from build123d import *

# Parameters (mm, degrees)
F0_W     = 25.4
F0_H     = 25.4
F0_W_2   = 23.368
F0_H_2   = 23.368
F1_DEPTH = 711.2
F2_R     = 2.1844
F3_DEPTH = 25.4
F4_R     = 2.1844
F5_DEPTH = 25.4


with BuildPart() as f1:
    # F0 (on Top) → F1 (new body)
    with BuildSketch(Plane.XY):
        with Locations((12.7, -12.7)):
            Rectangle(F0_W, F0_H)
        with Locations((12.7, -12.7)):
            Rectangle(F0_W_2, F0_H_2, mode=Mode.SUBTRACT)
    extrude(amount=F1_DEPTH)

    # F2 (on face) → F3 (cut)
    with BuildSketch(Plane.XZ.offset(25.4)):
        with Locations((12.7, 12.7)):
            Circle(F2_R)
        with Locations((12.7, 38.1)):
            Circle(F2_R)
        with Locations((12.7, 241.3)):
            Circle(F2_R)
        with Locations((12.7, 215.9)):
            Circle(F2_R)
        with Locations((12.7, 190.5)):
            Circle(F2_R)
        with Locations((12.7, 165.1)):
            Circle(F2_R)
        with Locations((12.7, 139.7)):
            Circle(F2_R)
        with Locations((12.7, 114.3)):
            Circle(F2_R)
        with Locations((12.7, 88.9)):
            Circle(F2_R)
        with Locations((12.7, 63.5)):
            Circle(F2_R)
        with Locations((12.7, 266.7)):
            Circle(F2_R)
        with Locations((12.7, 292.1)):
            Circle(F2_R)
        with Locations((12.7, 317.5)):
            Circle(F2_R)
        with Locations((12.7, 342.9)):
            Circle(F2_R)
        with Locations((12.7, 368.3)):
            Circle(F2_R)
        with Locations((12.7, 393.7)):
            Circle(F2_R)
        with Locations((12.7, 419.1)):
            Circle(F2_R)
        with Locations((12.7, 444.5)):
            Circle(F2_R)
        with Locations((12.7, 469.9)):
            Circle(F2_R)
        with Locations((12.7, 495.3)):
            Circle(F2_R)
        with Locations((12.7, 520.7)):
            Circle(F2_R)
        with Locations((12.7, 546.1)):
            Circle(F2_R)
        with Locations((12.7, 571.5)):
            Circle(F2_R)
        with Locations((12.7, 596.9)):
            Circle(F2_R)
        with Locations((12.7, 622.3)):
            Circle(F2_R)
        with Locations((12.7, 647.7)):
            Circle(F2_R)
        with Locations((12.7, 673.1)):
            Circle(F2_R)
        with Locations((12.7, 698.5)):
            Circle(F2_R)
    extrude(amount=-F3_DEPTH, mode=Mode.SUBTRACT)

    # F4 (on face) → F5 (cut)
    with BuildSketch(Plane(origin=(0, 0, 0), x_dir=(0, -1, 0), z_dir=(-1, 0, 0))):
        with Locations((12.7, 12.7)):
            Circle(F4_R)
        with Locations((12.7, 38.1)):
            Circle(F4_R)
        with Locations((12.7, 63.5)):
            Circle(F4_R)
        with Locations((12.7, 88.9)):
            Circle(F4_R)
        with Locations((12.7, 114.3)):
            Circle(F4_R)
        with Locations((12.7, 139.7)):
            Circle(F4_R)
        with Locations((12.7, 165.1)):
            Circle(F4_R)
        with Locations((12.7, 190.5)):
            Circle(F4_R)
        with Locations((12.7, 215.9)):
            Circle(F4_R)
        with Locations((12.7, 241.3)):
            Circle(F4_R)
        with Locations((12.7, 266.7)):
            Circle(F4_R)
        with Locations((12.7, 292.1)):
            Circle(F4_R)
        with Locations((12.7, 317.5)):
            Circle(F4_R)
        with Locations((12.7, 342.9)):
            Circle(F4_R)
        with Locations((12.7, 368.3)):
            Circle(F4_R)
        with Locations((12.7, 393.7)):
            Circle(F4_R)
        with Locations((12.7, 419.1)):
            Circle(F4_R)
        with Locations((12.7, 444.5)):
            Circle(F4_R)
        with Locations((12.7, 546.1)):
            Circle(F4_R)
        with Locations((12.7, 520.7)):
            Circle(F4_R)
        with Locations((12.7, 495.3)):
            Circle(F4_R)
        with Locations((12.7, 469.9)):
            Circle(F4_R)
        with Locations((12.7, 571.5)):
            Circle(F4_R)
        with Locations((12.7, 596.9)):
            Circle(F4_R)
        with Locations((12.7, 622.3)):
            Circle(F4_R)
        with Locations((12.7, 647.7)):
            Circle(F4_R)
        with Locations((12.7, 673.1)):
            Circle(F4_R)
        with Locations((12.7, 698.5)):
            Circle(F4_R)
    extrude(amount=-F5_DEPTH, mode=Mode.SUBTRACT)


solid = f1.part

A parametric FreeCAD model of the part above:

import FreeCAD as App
import Part
import Sketcher
from FreeCAD import Vector
Q = App.Units.Quantity

doc = App.newDocument("Part")
params = doc.addObject("Spreadsheet::Sheet", "Params")
for row, (alias, value) in enumerate([
    ("sketch1_width", "1 in"),
    ("sketch1_width2", "0.92 in"),
    ("pad1_length", "28 in"),
    ("sketch2_diameter", "0.172 in"),
    ("pocket1_length", "1 in"),
    ("sketch3_diameter", "0.172 in"),
    ("pocket2_length", "1 in"),
], start=1):
    params.set(f"A{row}", alias)
    params.set(f"B{row}", "=" + value)
    params.setAlias(f"B{row}", alias)

body = doc.addObject("PartDesign::Body", "Body")

# Sketch on XY plane
sketch1 = body.newObject("Sketcher::SketchObject", "Sketch")
sketch1.AttachmentSupport = (doc.getObject("XY_Plane"), [""])
sketch1.MapMode = "FlatFace"
sketch1.addGeometry(Part.LineSegment(Vector(0, 0, 0), Vector(0, -25.4, 0)), False)
sketch1.addGeometry(Part.LineSegment(Vector(0, -25.4, 0), Vector(25.4, -25.4, 0)), False)
sketch1.addGeometry(Part.LineSegment(Vector(25.4, -25.4, 0), Vector(25.4, 0, 0)), False)
sketch1.addGeometry(Part.LineSegment(Vector(25.4, 0, 0), Vector(0, 0, 0)), False)
sketch1.addGeometry(Part.LineSegment(Vector(24.384, -24.384, 0), Vector(1.016, -24.384, 0)), False)
sketch1.addGeometry(Part.LineSegment(Vector(1.016, -24.384, 0), Vector(1.016, -1.016, 0)), False)
sketch1.addGeometry(Part.LineSegment(Vector(1.016, -1.016, 0), Vector(24.384, -1.016, 0)), False)
sketch1.addGeometry(Part.LineSegment(Vector(24.384, -1.016, 0), Vector(24.384, -24.384, 0)), False)
sketch1.addConstraint(Sketcher.Constraint("Coincident", 0, 2, 1, 1))
sketch1.addConstraint(Sketcher.Constraint("Coincident", 1, 2, 2, 1))
sketch1.addConstraint(Sketcher.Constraint("Coincident", 2, 2, 3, 1))
sketch1.addConstraint(Sketcher.Constraint("Coincident", 3, 2, 0, 1))
sketch1.addConstraint(Sketcher.Constraint("Coincident", 4, 2, 5, 1))
sketch1.addConstraint(Sketcher.Constraint("Coincident", 5, 2, 6, 1))
sketch1.addConstraint(Sketcher.Constraint("Coincident", 6, 2, 7, 1))
sketch1.addConstraint(Sketcher.Constraint("Coincident", 7, 2, 4, 1))
sketch1.addConstraint(Sketcher.Constraint("Vertical", 0))
sketch1.addConstraint(Sketcher.Constraint("Horizontal", 1))
sketch1.addConstraint(Sketcher.Constraint("Vertical", 2))
sketch1.addConstraint(Sketcher.Constraint("Horizontal", 3))
sketch1.addConstraint(Sketcher.Constraint("Horizontal", 4))
sketch1.addConstraint(Sketcher.Constraint("Vertical", 5))
sketch1.addConstraint(Sketcher.Constraint("Horizontal", 6))
sketch1.addConstraint(Sketcher.Constraint("Vertical", 7))
sketch1.addConstraint(Sketcher.Constraint("Coincident", 3, 2, -1, 1))
sketch1.addConstraint(Sketcher.Constraint("Equal", 3, 0))
sketch1.addConstraint(Sketcher.Constraint("Equal", 6, 5))
sketch1.addConstraint(Sketcher.Constraint("DistanceX", 1, 1, 1, 2, Q("1 in")))
sketch1.addConstraint(Sketcher.Constraint("DistanceX", 4, 2, 4, 1, Q("0.92 in")))
sketch1.addConstraint(Sketcher.Constraint("DistanceX", -1, 1, 4, 2, Q("0.04 in")))
sketch1.addConstraint(Sketcher.Constraint("DistanceY", 4, 2, -1, 1, Q("0.96 in")))
sketch1.setExpression("Constraints[19]", "Params.sketch1_width")
sketch1.setExpression("Constraints[20]", "Params.sketch1_width2")
pad1 = body.newObject("PartDesign::Pad", "Pad")
pad1.Profile = sketch1
pad1.setExpression("Length", "Params.pad1_length")

# Sketch on XZ plane
sketch2 = body.newObject("Sketcher::SketchObject", "Sketch001")
sketch2.AttachmentSupport = (doc.getObject("XZ_Plane"), [""])
sketch2.MapMode = "FlatFace"
sketch2.AttachmentOffset = App.Placement(Vector(0, 0, 1 * 25.4), App.Rotation())
sketch2.addGeometry(Part.Circle(Vector(12.7, 12.7, 0), Vector(0, 0, 1), 2.1844), False)
sketch2.addGeometry(Part.Circle(Vector(12.7, 38.1, 0), Vector(0, 0, 1), 2.1844), False)
sketch2.addGeometry(Part.Circle(Vector(12.7, 241.3, 0), Vector(0, 0, 1), 2.1844), False)
sketch2.addGeometry(Part.Circle(Vector(12.7, 215.9, 0), Vector(0, 0, 1), 2.1844), False)
sketch2.addGeometry(Part.Circle(Vector(12.7, 190.5, 0), Vector(0, 0, 1), 2.1844), False)
sketch2.addGeometry(Part.Circle(Vector(12.7, 165.1, 0), Vector(0, 0, 1), 2.1844), False)
sketch2.addGeometry(Part.Circle(Vector(12.7, 139.7, 0), Vector(0, 0, 1), 2.1844), False)
sketch2.addGeometry(Part.Circle(Vector(12.7, 114.3, 0), Vector(0, 0, 1), 2.1844), False)
sketch2.addGeometry(Part.Circle(Vector(12.7, 88.9, 0), Vector(0, 0, 1), 2.1844), False)
sketch2.addGeometry(Part.Circle(Vector(12.7, 63.5, 0), Vector(0, 0, 1), 2.1844), False)
sketch2.addGeometry(Part.Circle(Vector(12.7, 266.7, 0), Vector(0, 0, 1), 2.1844), False)
sketch2.addGeometry(Part.Circle(Vector(12.7, 292.1, 0), Vector(0, 0, 1), 2.1844), False)
sketch2.addGeometry(Part.Circle(Vector(12.7, 317.5, 0), Vector(0, 0, 1), 2.1844), False)
sketch2.addGeometry(Part.Circle(Vector(12.7, 342.9, 0), Vector(0, 0, 1), 2.1844), False)
sketch2.addGeometry(Part.Circle(Vector(12.7, 368.3, 0), Vector(0, 0, 1), 2.1844), False)
sketch2.addGeometry(Part.Circle(Vector(12.7, 393.7, 0), Vector(0, 0, 1), 2.1844), False)
sketch2.addGeometry(Part.Circle(Vector(12.7, 419.1, 0), Vector(0, 0, 1), 2.1844), False)
sketch2.addGeometry(Part.Circle(Vector(12.7, 444.5, 0), Vector(0, 0, 1), 2.1844), False)
sketch2.addGeometry(Part.Circle(Vector(12.7, 469.9, 0), Vector(0, 0, 1), 2.1844), False)
sketch2.addGeometry(Part.Circle(Vector(12.7, 495.3, 0), Vector(0, 0, 1), 2.1844), False)
sketch2.addGeometry(Part.Circle(Vector(12.7, 520.7, 0), Vector(0, 0, 1), 2.1844), False)
sketch2.addGeometry(Part.Circle(Vector(12.7, 546.1, 0), Vector(0, 0, 1), 2.1844), False)
sketch2.addGeometry(Part.Circle(Vector(12.7, 571.5, 0), Vector(0, 0, 1), 2.1844), False)
sketch2.addGeometry(Part.Circle(Vector(12.7, 596.9, 0), Vector(0, 0, 1), 2.1844), False)
sketch2.addGeometry(Part.Circle(Vector(12.7, 622.3, 0), Vector(0, 0, 1), 2.1844), False)
sketch2.addGeometry(Part.Circle(Vector(12.7, 647.7, 0), Vector(0, 0, 1), 2.1844), False)
sketch2.addGeometry(Part.Circle(Vector(12.7, 673.1, 0), Vector(0, 0, 1), 2.1844), False)
sketch2.addGeometry(Part.Circle(Vector(12.7, 698.5, 0), Vector(0, 0, 1), 2.1844), False)
sketch2.addConstraint(Sketcher.Constraint("Equal", 0, 1))
sketch2.addConstraint(Sketcher.Constraint("Equal", 1, 2))
sketch2.addConstraint(Sketcher.Constraint("Equal", 2, 3))
sketch2.addConstraint(Sketcher.Constraint("Equal", 3, 4))
sketch2.addConstraint(Sketcher.Constraint("Equal", 4, 5))
sketch2.addConstraint(Sketcher.Constraint("Equal", 5, 6))
sketch2.addConstraint(Sketcher.Constraint("Equal", 6, 7))
sketch2.addConstraint(Sketcher.Constraint("Equal", 7, 8))
sketch2.addConstraint(Sketcher.Constraint("Equal", 8, 9))
sketch2.addConstraint(Sketcher.Constraint("Equal", 9, 10))
sketch2.addConstraint(Sketcher.Constraint("Equal", 10, 11))
sketch2.addConstraint(Sketcher.Constraint("Equal", 11, 12))
sketch2.addConstraint(Sketcher.Constraint("Equal", 12, 13))
sketch2.addConstraint(Sketcher.Constraint("Equal", 13, 14))
sketch2.addConstraint(Sketcher.Constraint("Equal", 14, 15))
sketch2.addConstraint(Sketcher.Constraint("Equal", 15, 16))
sketch2.addConstraint(Sketcher.Constraint("Equal", 16, 17))
sketch2.addConstraint(Sketcher.Constraint("Equal", 17, 18))
sketch2.addConstraint(Sketcher.Constraint("Equal", 18, 19))
sketch2.addConstraint(Sketcher.Constraint("Equal", 19, 20))
sketch2.addConstraint(Sketcher.Constraint("Equal", 20, 21))
sketch2.addConstraint(Sketcher.Constraint("Equal", 21, 22))
sketch2.addConstraint(Sketcher.Constraint("Equal", 22, 23))
sketch2.addConstraint(Sketcher.Constraint("Equal", 23, 24))
sketch2.addConstraint(Sketcher.Constraint("Equal", 24, 25))
sketch2.addConstraint(Sketcher.Constraint("Equal", 25, 26))
sketch2.addConstraint(Sketcher.Constraint("Equal", 26, 27))
sketch2.addConstraint(Sketcher.Constraint("Vertical", 0, 3, 1, 3))
sketch2.addConstraint(Sketcher.Constraint("Vertical", 1, 3, 2, 3))
sketch2.addConstraint(Sketcher.Constraint("Vertical", 2, 3, 3, 3))
sketch2.addConstraint(Sketcher.Constraint("Vertical", 3, 3, 4, 3))
sketch2.addConstraint(Sketcher.Constraint("Vertical", 4, 3, 5, 3))
sketch2.addConstraint(Sketcher.Constraint("Vertical", 5, 3, 6, 3))
sketch2.addConstraint(Sketcher.Constraint("Vertical", 6, 3, 7, 3))
sketch2.addConstraint(Sketcher.Constraint("Vertical", 7, 3, 8, 3))
sketch2.addConstraint(Sketcher.Constraint("Vertical", 8, 3, 9, 3))
sketch2.addConstraint(Sketcher.Constraint("Vertical", 9, 3, 10, 3))
sketch2.addConstraint(Sketcher.Constraint("Vertical", 10, 3, 11, 3))
sketch2.addConstraint(Sketcher.Constraint("Vertical", 11, 3, 12, 3))
sketch2.addConstraint(Sketcher.Constraint("Vertical", 12, 3, 13, 3))
sketch2.addConstraint(Sketcher.Constraint("Vertical", 13, 3, 14, 3))
sketch2.addConstraint(Sketcher.Constraint("Vertical", 14, 3, 15, 3))
sketch2.addConstraint(Sketcher.Constraint("Vertical", 15, 3, 16, 3))
sketch2.addConstraint(Sketcher.Constraint("Vertical", 16, 3, 17, 3))
sketch2.addConstraint(Sketcher.Constraint("Vertical", 17, 3, 18, 3))
sketch2.addConstraint(Sketcher.Constraint("Vertical", 18, 3, 19, 3))
sketch2.addConstraint(Sketcher.Constraint("Vertical", 19, 3, 20, 3))
sketch2.addConstraint(Sketcher.Constraint("Vertical", 20, 3, 21, 3))
sketch2.addConstraint(Sketcher.Constraint("Vertical", 21, 3, 22, 3))
sketch2.addConstraint(Sketcher.Constraint("Vertical", 22, 3, 23, 3))
sketch2.addConstraint(Sketcher.Constraint("Vertical", 23, 3, 24, 3))
sketch2.addConstraint(Sketcher.Constraint("Vertical", 24, 3, 25, 3))
sketch2.addConstraint(Sketcher.Constraint("Vertical", 25, 3, 26, 3))
sketch2.addConstraint(Sketcher.Constraint("Vertical", 26, 3, 27, 3))
sketch2.addConstraint(Sketcher.Constraint("Diameter", 0, Q("0.172 in")))
sketch2.addConstraint(Sketcher.Constraint("DistanceY", 0, 3, 1, 3, Q("1 in")))
sketch2.addConstraint(Sketcher.Constraint("DistanceY", 1, 3, 2, 3, Q("8 in")))
sketch2.addConstraint(Sketcher.Constraint("DistanceY", 3, 3, 2, 3, Q("1 in")))
sketch2.addConstraint(Sketcher.Constraint("DistanceY", 4, 3, 3, 3, Q("1 in")))
sketch2.addConstraint(Sketcher.Constraint("DistanceY", 5, 3, 4, 3, Q("1 in")))
sketch2.addConstraint(Sketcher.Constraint("DistanceY", 6, 3, 5, 3, Q("1 in")))
sketch2.addConstraint(Sketcher.Constraint("DistanceY", 7, 3, 6, 3, Q("1 in")))
sketch2.addConstraint(Sketcher.Constraint("DistanceY", 8, 3, 7, 3, Q("1 in")))
sketch2.addConstraint(Sketcher.Constraint("DistanceY", 1, 3, 9, 3, Q("1 in")))
sketch2.addConstraint(Sketcher.Constraint("DistanceY", 2, 3, 10, 3, Q("1 in")))
sketch2.addConstraint(Sketcher.Constraint("DistanceY", 10, 3, 11, 3, Q("1 in")))
sketch2.addConstraint(Sketcher.Constraint("DistanceY", 11, 3, 12, 3, Q("1 in")))
sketch2.addConstraint(Sketcher.Constraint("DistanceY", 12, 3, 13, 3, Q("1 in")))
sketch2.addConstraint(Sketcher.Constraint("DistanceY", 13, 3, 14, 3, Q("1 in")))
sketch2.addConstraint(Sketcher.Constraint("DistanceY", 14, 3, 15, 3, Q("1 in")))
sketch2.addConstraint(Sketcher.Constraint("DistanceY", 15, 3, 16, 3, Q("1 in")))
sketch2.addConstraint(Sketcher.Constraint("DistanceY", 16, 3, 17, 3, Q("1 in")))
sketch2.addConstraint(Sketcher.Constraint("DistanceY", 17, 3, 18, 3, Q("1 in")))
sketch2.addConstraint(Sketcher.Constraint("DistanceY", 18, 3, 19, 3, Q("1 in")))
sketch2.addConstraint(Sketcher.Constraint("DistanceY", 19, 3, 20, 3, Q("1 in")))
sketch2.addConstraint(Sketcher.Constraint("DistanceY", 20, 3, 21, 3, Q("1 in")))
sketch2.addConstraint(Sketcher.Constraint("DistanceY", 21, 3, 22, 3, Q("1 in")))
sketch2.addConstraint(Sketcher.Constraint("DistanceY", 22, 3, 23, 3, Q("1 in")))
sketch2.addConstraint(Sketcher.Constraint("DistanceY", 23, 3, 24, 3, Q("1 in")))
sketch2.addConstraint(Sketcher.Constraint("DistanceY", 24, 3, 25, 3, Q("1 in")))
sketch2.addConstraint(Sketcher.Constraint("DistanceY", 25, 3, 26, 3, Q("1 in")))
sketch2.addConstraint(Sketcher.Constraint("DistanceY", 26, 3, 27, 3, Q("1 in")))
sketch2.addConstraint(Sketcher.Constraint("DistanceX", -1, 1, 0, 3, Q("0.5 in")))
sketch2.addConstraint(Sketcher.Constraint("DistanceY", -1, 1, 0, 3, Q("0.5 in")))
sketch2.setExpression("Constraints[54]", "Params.sketch2_diameter")
pocket1 = body.newObject("PartDesign::Pocket", "Pocket")
pocket1.Profile = sketch2
pocket1.setExpression("Length", "Params.pocket1_length")

# Sketch on YZ plane
sketch3 = body.newObject("Sketcher::SketchObject", "Sketch002")
sketch3.AttachmentSupport = (doc.getObject("YZ_Plane"), [""])
sketch3.MapMode = "FlatFace"
sketch3.addGeometry(Part.Circle(Vector(-12.7, 12.7, 0), Vector(0, 0, 1), 2.1844), False)
sketch3.addGeometry(Part.Circle(Vector(-12.7, 38.1, 0), Vector(0, 0, 1), 2.1844), False)
sketch3.addGeometry(Part.Circle(Vector(-12.7, 63.5, 0), Vector(0, 0, 1), 2.1844), False)
sketch3.addGeometry(Part.Circle(Vector(-12.7, 88.9, 0), Vector(0, 0, 1), 2.1844), False)
sketch3.addGeometry(Part.Circle(Vector(-12.7, 114.3, 0), Vector(0, 0, 1), 2.1844), False)
sketch3.addGeometry(Part.Circle(Vector(-12.7, 139.7, 0), Vector(0, 0, 1), 2.1844), False)
sketch3.addGeometry(Part.Circle(Vector(-12.7, 165.1, 0), Vector(0, 0, 1), 2.1844), False)
sketch3.addGeometry(Part.Circle(Vector(-12.7, 190.5, 0), Vector(0, 0, 1), 2.1844), False)
sketch3.addGeometry(Part.Circle(Vector(-12.7, 215.9, 0), Vector(0, 0, 1), 2.1844), False)
sketch3.addGeometry(Part.Circle(Vector(-12.7, 241.3, 0), Vector(0, 0, 1), 2.1844), False)
sketch3.addGeometry(Part.Circle(Vector(-12.7, 266.7, 0), Vector(0, 0, 1), 2.1844), False)
sketch3.addGeometry(Part.Circle(Vector(-12.7, 292.1, 0), Vector(0, 0, 1), 2.1844), False)
sketch3.addGeometry(Part.Circle(Vector(-12.7, 317.5, 0), Vector(0, 0, 1), 2.1844), False)
sketch3.addGeometry(Part.Circle(Vector(-12.7, 342.9, 0), Vector(0, 0, 1), 2.1844), False)
sketch3.addGeometry(Part.Circle(Vector(-12.7, 368.3, 0), Vector(0, 0, 1), 2.1844), False)
sketch3.addGeometry(Part.Circle(Vector(-12.7, 393.7, 0), Vector(0, 0, 1), 2.1844), False)
sketch3.addGeometry(Part.Circle(Vector(-12.7, 419.1, 0), Vector(0, 0, 1), 2.1844), False)
sketch3.addGeometry(Part.Circle(Vector(-12.7, 444.5, 0), Vector(0, 0, 1), 2.1844), False)
sketch3.addGeometry(Part.Circle(Vector(-12.7, 546.1, 0), Vector(0, 0, 1), 2.1844), False)
sketch3.addGeometry(Part.Circle(Vector(-12.7, 520.7, 0), Vector(0, 0, 1), 2.1844), False)
sketch3.addGeometry(Part.Circle(Vector(-12.7, 495.3, 0), Vector(0, 0, 1), 2.1844), False)
sketch3.addGeometry(Part.Circle(Vector(-12.7, 469.9, 0), Vector(0, 0, 1), 2.1844), False)
sketch3.addGeometry(Part.Circle(Vector(-12.7, 571.5, 0), Vector(0, 0, 1), 2.1844), False)
sketch3.addGeometry(Part.Circle(Vector(-12.7, 596.9, 0), Vector(0, 0, 1), 2.1844), False)
sketch3.addGeometry(Part.Circle(Vector(-12.7, 622.3, 0), Vector(0, 0, 1), 2.1844), False)
sketch3.addGeometry(Part.Circle(Vector(-12.7, 647.7, 0), Vector(0, 0, 1), 2.1844), False)
sketch3.addGeometry(Part.Circle(Vector(-12.7, 673.1, 0), Vector(0, 0, 1), 2.1844), False)
sketch3.addGeometry(Part.Circle(Vector(-12.7, 698.5, 0), Vector(0, 0, 1), 2.1844), False)
sketch3.addConstraint(Sketcher.Constraint("Equal", 0, 1))
sketch3.addConstraint(Sketcher.Constraint("Equal", 1, 2))
sketch3.addConstraint(Sketcher.Constraint("Equal", 2, 3))
sketch3.addConstraint(Sketcher.Constraint("Equal", 3, 4))
sketch3.addConstraint(Sketcher.Constraint("Equal", 4, 5))
sketch3.addConstraint(Sketcher.Constraint("Equal", 5, 6))
sketch3.addConstraint(Sketcher.Constraint("Equal", 6, 7))
sketch3.addConstraint(Sketcher.Constraint("Equal", 7, 8))
sketch3.addConstraint(Sketcher.Constraint("Equal", 8, 9))
sketch3.addConstraint(Sketcher.Constraint("Equal", 9, 10))
sketch3.addConstraint(Sketcher.Constraint("Equal", 10, 11))
sketch3.addConstraint(Sketcher.Constraint("Equal", 11, 12))
sketch3.addConstraint(Sketcher.Constraint("Equal", 12, 13))
sketch3.addConstraint(Sketcher.Constraint("Equal", 13, 14))
sketch3.addConstraint(Sketcher.Constraint("Equal", 14, 15))
sketch3.addConstraint(Sketcher.Constraint("Equal", 15, 16))
sketch3.addConstraint(Sketcher.Constraint("Equal", 16, 17))
sketch3.addConstraint(Sketcher.Constraint("Equal", 17, 18))
sketch3.addConstraint(Sketcher.Constraint("Equal", 18, 19))
sketch3.addConstraint(Sketcher.Constraint("Equal", 19, 20))
sketch3.addConstraint(Sketcher.Constraint("Equal", 20, 21))
sketch3.addConstraint(Sketcher.Constraint("Equal", 21, 22))
sketch3.addConstraint(Sketcher.Constraint("Equal", 22, 23))
sketch3.addConstraint(Sketcher.Constraint("Equal", 23, 24))
sketch3.addConstraint(Sketcher.Constraint("Equal", 24, 25))
sketch3.addConstraint(Sketcher.Constraint("Equal", 25, 26))
sketch3.addConstraint(Sketcher.Constraint("Equal", 26, 27))
sketch3.addConstraint(Sketcher.Constraint("Vertical", 0, 3, 1, 3))
sketch3.addConstraint(Sketcher.Constraint("Vertical", 1, 3, 2, 3))
sketch3.addConstraint(Sketcher.Constraint("Vertical", 2, 3, 3, 3))
sketch3.addConstraint(Sketcher.Constraint("Vertical", 3, 3, 4, 3))
sketch3.addConstraint(Sketcher.Constraint("Vertical", 4, 3, 5, 3))
sketch3.addConstraint(Sketcher.Constraint("Vertical", 5, 3, 6, 3))
sketch3.addConstraint(Sketcher.Constraint("Vertical", 6, 3, 7, 3))
sketch3.addConstraint(Sketcher.Constraint("Vertical", 7, 3, 8, 3))
sketch3.addConstraint(Sketcher.Constraint("Vertical", 8, 3, 9, 3))
sketch3.addConstraint(Sketcher.Constraint("Vertical", 9, 3, 10, 3))
sketch3.addConstraint(Sketcher.Constraint("Vertical", 10, 3, 11, 3))
sketch3.addConstraint(Sketcher.Constraint("Vertical", 11, 3, 12, 3))
sketch3.addConstraint(Sketcher.Constraint("Vertical", 12, 3, 13, 3))
sketch3.addConstraint(Sketcher.Constraint("Vertical", 13, 3, 14, 3))
sketch3.addConstraint(Sketcher.Constraint("Vertical", 14, 3, 15, 3))
sketch3.addConstraint(Sketcher.Constraint("Vertical", 15, 3, 16, 3))
sketch3.addConstraint(Sketcher.Constraint("Vertical", 16, 3, 17, 3))
sketch3.addConstraint(Sketcher.Constraint("Vertical", 17, 3, 18, 3))
sketch3.addConstraint(Sketcher.Constraint("Vertical", 18, 3, 19, 3))
sketch3.addConstraint(Sketcher.Constraint("Vertical", 19, 3, 20, 3))
sketch3.addConstraint(Sketcher.Constraint("Vertical", 20, 3, 21, 3))
sketch3.addConstraint(Sketcher.Constraint("Vertical", 21, 3, 22, 3))
sketch3.addConstraint(Sketcher.Constraint("Vertical", 22, 3, 23, 3))
sketch3.addConstraint(Sketcher.Constraint("Vertical", 23, 3, 24, 3))
sketch3.addConstraint(Sketcher.Constraint("Vertical", 24, 3, 25, 3))
sketch3.addConstraint(Sketcher.Constraint("Vertical", 25, 3, 26, 3))
sketch3.addConstraint(Sketcher.Constraint("Vertical", 26, 3, 27, 3))
sketch3.addConstraint(Sketcher.Constraint("Diameter", 0, Q("0.172 in")))
sketch3.addConstraint(Sketcher.Constraint("DistanceY", 0, 3, 1, 3, Q("1 in")))
sketch3.addConstraint(Sketcher.Constraint("DistanceY", 1, 3, 2, 3, Q("1 in")))
sketch3.addConstraint(Sketcher.Constraint("DistanceY", 2, 3, 3, 3, Q("1 in")))
sketch3.addConstraint(Sketcher.Constraint("DistanceY", 3, 3, 4, 3, Q("1 in")))
sketch3.addConstraint(Sketcher.Constraint("DistanceY", 4, 3, 5, 3, Q("1 in")))
sketch3.addConstraint(Sketcher.Constraint("DistanceY", 5, 3, 6, 3, Q("1 in")))
sketch3.addConstraint(Sketcher.Constraint("DistanceY", 6, 3, 7, 3, Q("1 in")))
sketch3.addConstraint(Sketcher.Constraint("DistanceY", 7, 3, 8, 3, Q("1 in")))
sketch3.addConstraint(Sketcher.Constraint("DistanceY", 8, 3, 9, 3, Q("1 in")))
sketch3.addConstraint(Sketcher.Constraint("DistanceY", 9, 3, 10, 3, Q("1 in")))
sketch3.addConstraint(Sketcher.Constraint("DistanceY", 10, 3, 11, 3, Q("1 in")))
sketch3.addConstraint(Sketcher.Constraint("DistanceY", 11, 3, 12, 3, Q("1 in")))
sketch3.addConstraint(Sketcher.Constraint("DistanceY", 12, 3, 13, 3, Q("1 in")))
sketch3.addConstraint(Sketcher.Constraint("DistanceY", 13, 3, 14, 3, Q("1 in")))
sketch3.addConstraint(Sketcher.Constraint("DistanceY", 14, 3, 15, 3, Q("1 in")))
sketch3.addConstraint(Sketcher.Constraint("DistanceY", 15, 3, 16, 3, Q("1 in")))
sketch3.addConstraint(Sketcher.Constraint("DistanceY", 16, 3, 17, 3, Q("1 in")))
sketch3.addConstraint(Sketcher.Constraint("DistanceY", 17, 3, 18, 3, Q("4 in")))
sketch3.addConstraint(Sketcher.Constraint("DistanceY", 19, 3, 18, 3, Q("1 in")))
sketch3.addConstraint(Sketcher.Constraint("DistanceY", 20, 3, 19, 3, Q("1 in")))
sketch3.addConstraint(Sketcher.Constraint("DistanceY", 17, 3, 21, 3, Q("1 in")))
sketch3.addConstraint(Sketcher.Constraint("DistanceY", 18, 3, 22, 3, Q("1 in")))
sketch3.addConstraint(Sketcher.Constraint("DistanceY", 22, 3, 23, 3, Q("1 in")))
sketch3.addConstraint(Sketcher.Constraint("DistanceY", 23, 3, 24, 3, Q("1 in")))
sketch3.addConstraint(Sketcher.Constraint("DistanceY", 24, 3, 25, 3, Q("1 in")))
sketch3.addConstraint(Sketcher.Constraint("DistanceY", 25, 3, 26, 3, Q("1 in")))
sketch3.addConstraint(Sketcher.Constraint("DistanceY", 26, 3, 27, 3, Q("1 in")))
sketch3.addConstraint(Sketcher.Constraint("DistanceX", 0, 3, -1, 1, Q("0.5 in")))
sketch3.addConstraint(Sketcher.Constraint("DistanceY", -1, 1, 0, 3, Q("0.5 in")))
sketch3.setExpression("Constraints[54]", "Params.sketch3_diameter")
pocket2 = body.newObject("PartDesign::Pocket", "Pocket001")
pocket2.Profile = sketch3
pocket2.setExpression("Length", "Params.pocket2_length")
pocket2.Reversed = True

doc.recompute()
